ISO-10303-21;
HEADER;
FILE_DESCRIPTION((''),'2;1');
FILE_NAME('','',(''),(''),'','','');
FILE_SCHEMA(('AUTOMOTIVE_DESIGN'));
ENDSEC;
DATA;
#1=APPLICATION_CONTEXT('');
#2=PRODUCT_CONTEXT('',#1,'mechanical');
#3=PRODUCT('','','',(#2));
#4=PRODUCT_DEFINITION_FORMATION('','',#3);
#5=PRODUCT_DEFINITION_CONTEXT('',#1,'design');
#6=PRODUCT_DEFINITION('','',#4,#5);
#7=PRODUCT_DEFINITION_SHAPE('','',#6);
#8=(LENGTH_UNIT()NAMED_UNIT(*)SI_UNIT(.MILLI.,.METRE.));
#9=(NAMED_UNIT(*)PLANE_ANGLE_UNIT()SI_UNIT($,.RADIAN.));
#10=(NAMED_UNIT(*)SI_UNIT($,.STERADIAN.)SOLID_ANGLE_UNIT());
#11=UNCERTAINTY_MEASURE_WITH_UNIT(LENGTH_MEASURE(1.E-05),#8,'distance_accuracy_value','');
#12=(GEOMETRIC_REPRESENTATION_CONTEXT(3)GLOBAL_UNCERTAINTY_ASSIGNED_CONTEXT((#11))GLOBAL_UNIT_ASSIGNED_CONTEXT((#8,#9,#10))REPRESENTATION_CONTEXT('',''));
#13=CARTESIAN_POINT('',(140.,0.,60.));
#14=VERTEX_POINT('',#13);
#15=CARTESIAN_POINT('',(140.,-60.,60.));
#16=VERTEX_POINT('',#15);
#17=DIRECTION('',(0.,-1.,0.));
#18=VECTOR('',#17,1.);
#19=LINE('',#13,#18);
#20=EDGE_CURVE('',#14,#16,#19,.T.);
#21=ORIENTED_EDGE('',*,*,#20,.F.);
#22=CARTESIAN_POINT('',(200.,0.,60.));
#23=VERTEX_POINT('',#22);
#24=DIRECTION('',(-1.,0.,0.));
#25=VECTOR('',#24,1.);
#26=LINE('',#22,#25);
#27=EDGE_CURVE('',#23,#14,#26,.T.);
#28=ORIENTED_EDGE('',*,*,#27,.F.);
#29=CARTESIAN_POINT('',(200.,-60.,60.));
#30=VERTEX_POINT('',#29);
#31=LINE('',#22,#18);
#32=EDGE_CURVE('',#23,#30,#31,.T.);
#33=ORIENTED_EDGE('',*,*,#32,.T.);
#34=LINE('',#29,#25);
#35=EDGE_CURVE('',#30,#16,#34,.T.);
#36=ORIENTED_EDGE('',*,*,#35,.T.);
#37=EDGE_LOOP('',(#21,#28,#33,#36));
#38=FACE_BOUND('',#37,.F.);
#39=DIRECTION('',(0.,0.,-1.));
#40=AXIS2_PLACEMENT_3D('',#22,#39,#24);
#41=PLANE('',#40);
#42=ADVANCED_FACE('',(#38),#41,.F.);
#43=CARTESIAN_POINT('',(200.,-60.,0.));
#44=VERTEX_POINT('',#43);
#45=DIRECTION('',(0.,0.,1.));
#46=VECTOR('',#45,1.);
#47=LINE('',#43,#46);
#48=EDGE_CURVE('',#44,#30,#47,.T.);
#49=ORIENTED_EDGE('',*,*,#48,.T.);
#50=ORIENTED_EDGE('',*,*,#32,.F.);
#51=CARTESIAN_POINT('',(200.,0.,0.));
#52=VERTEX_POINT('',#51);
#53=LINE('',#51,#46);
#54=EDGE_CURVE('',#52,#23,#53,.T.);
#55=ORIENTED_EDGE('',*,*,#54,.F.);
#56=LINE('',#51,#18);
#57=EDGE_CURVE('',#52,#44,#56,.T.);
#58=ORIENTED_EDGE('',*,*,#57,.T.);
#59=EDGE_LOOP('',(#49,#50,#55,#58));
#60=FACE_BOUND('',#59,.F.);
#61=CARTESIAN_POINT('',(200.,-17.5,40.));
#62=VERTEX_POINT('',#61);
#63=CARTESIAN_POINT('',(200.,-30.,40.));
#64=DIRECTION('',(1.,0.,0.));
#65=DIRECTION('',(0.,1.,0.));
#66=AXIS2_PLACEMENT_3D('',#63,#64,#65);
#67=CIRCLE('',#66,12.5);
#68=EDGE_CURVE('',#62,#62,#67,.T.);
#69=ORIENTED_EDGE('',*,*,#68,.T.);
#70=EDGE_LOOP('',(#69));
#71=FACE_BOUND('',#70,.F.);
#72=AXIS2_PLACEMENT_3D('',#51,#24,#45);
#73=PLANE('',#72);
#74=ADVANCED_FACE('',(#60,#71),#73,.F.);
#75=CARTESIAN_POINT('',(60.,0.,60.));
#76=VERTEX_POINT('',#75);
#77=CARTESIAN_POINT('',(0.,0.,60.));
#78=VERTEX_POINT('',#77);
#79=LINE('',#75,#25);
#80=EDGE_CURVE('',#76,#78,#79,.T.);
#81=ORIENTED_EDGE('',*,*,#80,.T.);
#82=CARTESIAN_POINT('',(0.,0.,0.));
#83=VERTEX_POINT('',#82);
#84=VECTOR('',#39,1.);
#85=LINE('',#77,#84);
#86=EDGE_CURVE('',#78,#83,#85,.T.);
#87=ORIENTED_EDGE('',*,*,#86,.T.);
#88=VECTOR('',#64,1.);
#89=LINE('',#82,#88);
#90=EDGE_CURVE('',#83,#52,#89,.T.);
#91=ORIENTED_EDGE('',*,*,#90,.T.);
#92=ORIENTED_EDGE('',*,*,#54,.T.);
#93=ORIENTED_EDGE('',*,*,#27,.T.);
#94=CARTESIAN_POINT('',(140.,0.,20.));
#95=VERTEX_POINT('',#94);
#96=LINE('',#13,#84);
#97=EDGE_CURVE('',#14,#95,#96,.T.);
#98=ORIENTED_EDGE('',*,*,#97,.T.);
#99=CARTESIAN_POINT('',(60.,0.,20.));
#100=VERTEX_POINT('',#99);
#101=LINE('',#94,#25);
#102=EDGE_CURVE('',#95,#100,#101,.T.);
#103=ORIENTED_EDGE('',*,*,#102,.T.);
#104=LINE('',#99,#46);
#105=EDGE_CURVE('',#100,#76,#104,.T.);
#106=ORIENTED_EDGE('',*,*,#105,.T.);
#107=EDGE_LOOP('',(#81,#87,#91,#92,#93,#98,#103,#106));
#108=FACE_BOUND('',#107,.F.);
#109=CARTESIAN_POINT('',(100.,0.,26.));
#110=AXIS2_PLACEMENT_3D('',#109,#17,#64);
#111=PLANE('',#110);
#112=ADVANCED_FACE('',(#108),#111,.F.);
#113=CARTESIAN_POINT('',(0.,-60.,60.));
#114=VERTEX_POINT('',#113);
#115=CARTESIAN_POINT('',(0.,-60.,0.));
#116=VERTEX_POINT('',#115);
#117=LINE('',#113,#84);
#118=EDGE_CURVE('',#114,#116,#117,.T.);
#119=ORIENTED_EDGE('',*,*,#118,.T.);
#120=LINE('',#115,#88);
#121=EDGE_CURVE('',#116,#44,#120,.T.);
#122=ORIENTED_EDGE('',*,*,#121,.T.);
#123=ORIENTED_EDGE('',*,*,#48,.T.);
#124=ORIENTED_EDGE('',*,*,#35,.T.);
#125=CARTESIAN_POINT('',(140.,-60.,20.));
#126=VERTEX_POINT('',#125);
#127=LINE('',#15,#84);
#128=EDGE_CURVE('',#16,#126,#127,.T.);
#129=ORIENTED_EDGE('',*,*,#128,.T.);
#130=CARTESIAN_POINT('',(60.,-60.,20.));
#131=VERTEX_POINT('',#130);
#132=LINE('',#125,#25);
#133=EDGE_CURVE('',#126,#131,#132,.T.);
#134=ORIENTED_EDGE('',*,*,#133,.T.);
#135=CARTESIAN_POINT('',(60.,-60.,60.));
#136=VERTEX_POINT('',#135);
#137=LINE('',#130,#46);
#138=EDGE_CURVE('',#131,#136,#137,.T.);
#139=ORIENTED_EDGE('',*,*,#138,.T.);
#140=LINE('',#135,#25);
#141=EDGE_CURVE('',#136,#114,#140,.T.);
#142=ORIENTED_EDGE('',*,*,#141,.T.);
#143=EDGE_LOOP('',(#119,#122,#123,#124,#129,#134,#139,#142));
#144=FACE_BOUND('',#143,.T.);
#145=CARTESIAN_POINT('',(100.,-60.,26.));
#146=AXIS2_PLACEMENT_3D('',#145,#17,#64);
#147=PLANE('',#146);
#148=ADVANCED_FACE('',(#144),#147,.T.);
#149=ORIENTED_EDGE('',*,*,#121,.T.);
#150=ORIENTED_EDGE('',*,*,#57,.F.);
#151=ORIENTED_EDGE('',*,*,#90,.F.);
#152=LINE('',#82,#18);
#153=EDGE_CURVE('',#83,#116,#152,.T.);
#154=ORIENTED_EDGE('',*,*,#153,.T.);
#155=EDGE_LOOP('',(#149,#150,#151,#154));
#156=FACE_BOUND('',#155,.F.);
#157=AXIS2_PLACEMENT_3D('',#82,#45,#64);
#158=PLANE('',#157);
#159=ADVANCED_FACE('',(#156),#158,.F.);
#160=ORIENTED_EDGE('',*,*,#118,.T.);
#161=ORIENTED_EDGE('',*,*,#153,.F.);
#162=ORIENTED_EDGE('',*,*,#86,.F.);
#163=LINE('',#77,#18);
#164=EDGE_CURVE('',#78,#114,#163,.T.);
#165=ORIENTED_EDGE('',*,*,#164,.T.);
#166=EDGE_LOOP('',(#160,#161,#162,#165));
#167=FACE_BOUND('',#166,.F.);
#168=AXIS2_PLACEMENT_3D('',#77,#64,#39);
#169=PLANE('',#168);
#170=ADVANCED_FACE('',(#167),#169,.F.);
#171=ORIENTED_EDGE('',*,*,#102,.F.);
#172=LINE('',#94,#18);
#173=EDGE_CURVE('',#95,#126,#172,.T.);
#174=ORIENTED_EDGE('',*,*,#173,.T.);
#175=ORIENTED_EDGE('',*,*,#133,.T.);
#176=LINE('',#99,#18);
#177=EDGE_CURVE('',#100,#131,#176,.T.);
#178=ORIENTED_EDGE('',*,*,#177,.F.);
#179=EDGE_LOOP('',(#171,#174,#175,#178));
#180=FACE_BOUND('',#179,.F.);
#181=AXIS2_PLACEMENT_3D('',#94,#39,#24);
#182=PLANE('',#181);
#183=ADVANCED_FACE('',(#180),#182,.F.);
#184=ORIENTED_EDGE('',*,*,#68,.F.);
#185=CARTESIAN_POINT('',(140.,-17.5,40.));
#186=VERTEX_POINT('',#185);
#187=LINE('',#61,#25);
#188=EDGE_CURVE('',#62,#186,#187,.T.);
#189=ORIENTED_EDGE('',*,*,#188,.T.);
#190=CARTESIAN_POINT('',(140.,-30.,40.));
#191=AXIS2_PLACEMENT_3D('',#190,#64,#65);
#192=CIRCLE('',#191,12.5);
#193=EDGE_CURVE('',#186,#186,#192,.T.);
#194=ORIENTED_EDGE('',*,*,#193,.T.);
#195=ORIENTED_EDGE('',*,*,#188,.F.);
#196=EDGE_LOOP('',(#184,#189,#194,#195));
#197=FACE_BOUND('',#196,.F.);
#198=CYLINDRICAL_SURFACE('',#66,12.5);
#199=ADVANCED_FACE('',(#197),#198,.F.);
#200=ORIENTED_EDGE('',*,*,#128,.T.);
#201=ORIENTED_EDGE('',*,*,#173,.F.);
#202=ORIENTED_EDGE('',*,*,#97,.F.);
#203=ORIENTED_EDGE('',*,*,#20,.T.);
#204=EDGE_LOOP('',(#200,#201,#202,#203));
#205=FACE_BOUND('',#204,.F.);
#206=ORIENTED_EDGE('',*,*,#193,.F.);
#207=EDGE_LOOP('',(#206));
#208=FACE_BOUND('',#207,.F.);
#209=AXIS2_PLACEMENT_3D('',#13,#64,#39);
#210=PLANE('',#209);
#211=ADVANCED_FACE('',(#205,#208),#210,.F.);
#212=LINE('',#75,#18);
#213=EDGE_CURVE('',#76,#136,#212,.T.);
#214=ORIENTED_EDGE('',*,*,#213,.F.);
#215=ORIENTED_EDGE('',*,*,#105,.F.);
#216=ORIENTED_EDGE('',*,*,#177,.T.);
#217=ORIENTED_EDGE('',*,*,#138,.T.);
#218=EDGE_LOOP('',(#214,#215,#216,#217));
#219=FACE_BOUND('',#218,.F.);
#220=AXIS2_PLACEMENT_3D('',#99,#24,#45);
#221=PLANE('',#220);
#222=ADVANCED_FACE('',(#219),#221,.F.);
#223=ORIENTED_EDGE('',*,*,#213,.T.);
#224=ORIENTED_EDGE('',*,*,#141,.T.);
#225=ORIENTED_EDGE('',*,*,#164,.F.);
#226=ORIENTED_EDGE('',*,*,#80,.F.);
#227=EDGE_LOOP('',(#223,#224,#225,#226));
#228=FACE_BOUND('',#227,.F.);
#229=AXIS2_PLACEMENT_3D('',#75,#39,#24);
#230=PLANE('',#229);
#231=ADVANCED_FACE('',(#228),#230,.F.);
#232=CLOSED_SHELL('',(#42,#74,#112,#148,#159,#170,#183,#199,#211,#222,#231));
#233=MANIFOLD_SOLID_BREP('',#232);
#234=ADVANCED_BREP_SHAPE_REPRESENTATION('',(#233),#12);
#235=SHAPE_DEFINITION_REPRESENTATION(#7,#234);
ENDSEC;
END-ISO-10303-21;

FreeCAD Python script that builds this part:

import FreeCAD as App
import Part
import Sketcher

V = App.Vector
Q = App.Units.Quantity


def add_polygon(sketch, points):
    """Adds a closed chain of lines whose ends are joined by coincident constraints."""
    first, n = sketch.GeometryCount, len(points)
    for a, b in zip(points, points[1:] + points[:1]):
        sketch.addGeometry(Part.LineSegment(App.Vector(*a, 0), App.Vector(*b, 0)), False)
    for i in range(n):
        sketch.addConstraint(Sketcher.Constraint("Coincident", first + i, 2, first + (i + 1) % n, 1))

doc = App.newDocument("Part")
body = doc.addObject("PartDesign::Body", "Body")

# Sketch on XZ plane
sketch1 = body.newObject("Sketcher::SketchObject", "Sketch")
sketch1.AttachmentSupport = (doc.getObject("XZ_Plane"), [""])
sketch1.MapMode = "FlatFace"
add_polygon(sketch1, [(0, 60), (0, 0), (200, 0), (200, 60), (140, 60), (140, 20), (60, 20), (60, 60)])  # lines 0-7
sketch1.addConstraint(Sketcher.Constraint("Vertical", 0))
sketch1.addConstraint(Sketcher.Constraint("Horizontal", 1))
sketch1.addConstraint(Sketcher.Constraint("Vertical", 2))
sketch1.addConstraint(Sketcher.Constraint("Horizontal", 3))
sketch1.addConstraint(Sketcher.Constraint("Vertical", 4))
sketch1.addConstraint(Sketcher.Constraint("Horizontal", 5))
sketch1.addConstraint(Sketcher.Constraint("Vertical", 6))
sketch1.addConstraint(Sketcher.Constraint("Horizontal", 7))
sketch1.addConstraint(Sketcher.Constraint("Coincident", 0, 2, -1, 1))
sketch1.addConstraint(Sketcher.Constraint("Horizontal", 3, 2, 6, 2))
sketch1.addConstraint(Sketcher.Constraint("Equal", 3, 7))
sketch1.addConstraint(Sketcher.Constraint("Equal", 7, 0))
sketch1.addConstraint(Sketcher.Constraint("DistanceX", 1, 1, 1, 2, Q("200 mm")))
sketch1.addConstraint(Sketcher.Constraint("DistanceX", 3, 2, 3, 1, Q("60 mm")))
sketch1.addConstraint(Sketcher.Constraint("DistanceY", 4, 2, 4, 1, Q("40 mm")))
pad1 = body.newObject("PartDesign::Pad", "Pad")
pad1.Profile = sketch1
pad1.Length = 60

# Sketch on YZ plane
sketch2 = body.newObject("Sketcher::SketchObject", "Sketch001")
sketch2.AttachmentSupport = (doc.getObject("YZ_Plane"), [""])
sketch2.MapMode = "FlatFace"
sketch2.AttachmentOffset = App.Placement(V(0, 0, 200), App.Rotation())
sketch2.addGeometry(Part.Circle(V(-30, 40, 0), V(0, 0, 1), 12), False)
sketch2.addConstraint(Sketcher.Constraint("Diameter", 0, Q("25 mm")))
sketch2.addConstraint(Sketcher.Constraint("DistanceX", 0, 3, -1, 1, Q("30 mm")))
sketch2.addConstraint(Sketcher.Constraint("DistanceY", -1, 1, 0, 3, Q("40 mm")))
pocket1 = body.newObject("PartDesign::Pocket", "Pocket")
pocket1.Profile = sketch2
pocket1.Length = 82.6

doc.recompute()
